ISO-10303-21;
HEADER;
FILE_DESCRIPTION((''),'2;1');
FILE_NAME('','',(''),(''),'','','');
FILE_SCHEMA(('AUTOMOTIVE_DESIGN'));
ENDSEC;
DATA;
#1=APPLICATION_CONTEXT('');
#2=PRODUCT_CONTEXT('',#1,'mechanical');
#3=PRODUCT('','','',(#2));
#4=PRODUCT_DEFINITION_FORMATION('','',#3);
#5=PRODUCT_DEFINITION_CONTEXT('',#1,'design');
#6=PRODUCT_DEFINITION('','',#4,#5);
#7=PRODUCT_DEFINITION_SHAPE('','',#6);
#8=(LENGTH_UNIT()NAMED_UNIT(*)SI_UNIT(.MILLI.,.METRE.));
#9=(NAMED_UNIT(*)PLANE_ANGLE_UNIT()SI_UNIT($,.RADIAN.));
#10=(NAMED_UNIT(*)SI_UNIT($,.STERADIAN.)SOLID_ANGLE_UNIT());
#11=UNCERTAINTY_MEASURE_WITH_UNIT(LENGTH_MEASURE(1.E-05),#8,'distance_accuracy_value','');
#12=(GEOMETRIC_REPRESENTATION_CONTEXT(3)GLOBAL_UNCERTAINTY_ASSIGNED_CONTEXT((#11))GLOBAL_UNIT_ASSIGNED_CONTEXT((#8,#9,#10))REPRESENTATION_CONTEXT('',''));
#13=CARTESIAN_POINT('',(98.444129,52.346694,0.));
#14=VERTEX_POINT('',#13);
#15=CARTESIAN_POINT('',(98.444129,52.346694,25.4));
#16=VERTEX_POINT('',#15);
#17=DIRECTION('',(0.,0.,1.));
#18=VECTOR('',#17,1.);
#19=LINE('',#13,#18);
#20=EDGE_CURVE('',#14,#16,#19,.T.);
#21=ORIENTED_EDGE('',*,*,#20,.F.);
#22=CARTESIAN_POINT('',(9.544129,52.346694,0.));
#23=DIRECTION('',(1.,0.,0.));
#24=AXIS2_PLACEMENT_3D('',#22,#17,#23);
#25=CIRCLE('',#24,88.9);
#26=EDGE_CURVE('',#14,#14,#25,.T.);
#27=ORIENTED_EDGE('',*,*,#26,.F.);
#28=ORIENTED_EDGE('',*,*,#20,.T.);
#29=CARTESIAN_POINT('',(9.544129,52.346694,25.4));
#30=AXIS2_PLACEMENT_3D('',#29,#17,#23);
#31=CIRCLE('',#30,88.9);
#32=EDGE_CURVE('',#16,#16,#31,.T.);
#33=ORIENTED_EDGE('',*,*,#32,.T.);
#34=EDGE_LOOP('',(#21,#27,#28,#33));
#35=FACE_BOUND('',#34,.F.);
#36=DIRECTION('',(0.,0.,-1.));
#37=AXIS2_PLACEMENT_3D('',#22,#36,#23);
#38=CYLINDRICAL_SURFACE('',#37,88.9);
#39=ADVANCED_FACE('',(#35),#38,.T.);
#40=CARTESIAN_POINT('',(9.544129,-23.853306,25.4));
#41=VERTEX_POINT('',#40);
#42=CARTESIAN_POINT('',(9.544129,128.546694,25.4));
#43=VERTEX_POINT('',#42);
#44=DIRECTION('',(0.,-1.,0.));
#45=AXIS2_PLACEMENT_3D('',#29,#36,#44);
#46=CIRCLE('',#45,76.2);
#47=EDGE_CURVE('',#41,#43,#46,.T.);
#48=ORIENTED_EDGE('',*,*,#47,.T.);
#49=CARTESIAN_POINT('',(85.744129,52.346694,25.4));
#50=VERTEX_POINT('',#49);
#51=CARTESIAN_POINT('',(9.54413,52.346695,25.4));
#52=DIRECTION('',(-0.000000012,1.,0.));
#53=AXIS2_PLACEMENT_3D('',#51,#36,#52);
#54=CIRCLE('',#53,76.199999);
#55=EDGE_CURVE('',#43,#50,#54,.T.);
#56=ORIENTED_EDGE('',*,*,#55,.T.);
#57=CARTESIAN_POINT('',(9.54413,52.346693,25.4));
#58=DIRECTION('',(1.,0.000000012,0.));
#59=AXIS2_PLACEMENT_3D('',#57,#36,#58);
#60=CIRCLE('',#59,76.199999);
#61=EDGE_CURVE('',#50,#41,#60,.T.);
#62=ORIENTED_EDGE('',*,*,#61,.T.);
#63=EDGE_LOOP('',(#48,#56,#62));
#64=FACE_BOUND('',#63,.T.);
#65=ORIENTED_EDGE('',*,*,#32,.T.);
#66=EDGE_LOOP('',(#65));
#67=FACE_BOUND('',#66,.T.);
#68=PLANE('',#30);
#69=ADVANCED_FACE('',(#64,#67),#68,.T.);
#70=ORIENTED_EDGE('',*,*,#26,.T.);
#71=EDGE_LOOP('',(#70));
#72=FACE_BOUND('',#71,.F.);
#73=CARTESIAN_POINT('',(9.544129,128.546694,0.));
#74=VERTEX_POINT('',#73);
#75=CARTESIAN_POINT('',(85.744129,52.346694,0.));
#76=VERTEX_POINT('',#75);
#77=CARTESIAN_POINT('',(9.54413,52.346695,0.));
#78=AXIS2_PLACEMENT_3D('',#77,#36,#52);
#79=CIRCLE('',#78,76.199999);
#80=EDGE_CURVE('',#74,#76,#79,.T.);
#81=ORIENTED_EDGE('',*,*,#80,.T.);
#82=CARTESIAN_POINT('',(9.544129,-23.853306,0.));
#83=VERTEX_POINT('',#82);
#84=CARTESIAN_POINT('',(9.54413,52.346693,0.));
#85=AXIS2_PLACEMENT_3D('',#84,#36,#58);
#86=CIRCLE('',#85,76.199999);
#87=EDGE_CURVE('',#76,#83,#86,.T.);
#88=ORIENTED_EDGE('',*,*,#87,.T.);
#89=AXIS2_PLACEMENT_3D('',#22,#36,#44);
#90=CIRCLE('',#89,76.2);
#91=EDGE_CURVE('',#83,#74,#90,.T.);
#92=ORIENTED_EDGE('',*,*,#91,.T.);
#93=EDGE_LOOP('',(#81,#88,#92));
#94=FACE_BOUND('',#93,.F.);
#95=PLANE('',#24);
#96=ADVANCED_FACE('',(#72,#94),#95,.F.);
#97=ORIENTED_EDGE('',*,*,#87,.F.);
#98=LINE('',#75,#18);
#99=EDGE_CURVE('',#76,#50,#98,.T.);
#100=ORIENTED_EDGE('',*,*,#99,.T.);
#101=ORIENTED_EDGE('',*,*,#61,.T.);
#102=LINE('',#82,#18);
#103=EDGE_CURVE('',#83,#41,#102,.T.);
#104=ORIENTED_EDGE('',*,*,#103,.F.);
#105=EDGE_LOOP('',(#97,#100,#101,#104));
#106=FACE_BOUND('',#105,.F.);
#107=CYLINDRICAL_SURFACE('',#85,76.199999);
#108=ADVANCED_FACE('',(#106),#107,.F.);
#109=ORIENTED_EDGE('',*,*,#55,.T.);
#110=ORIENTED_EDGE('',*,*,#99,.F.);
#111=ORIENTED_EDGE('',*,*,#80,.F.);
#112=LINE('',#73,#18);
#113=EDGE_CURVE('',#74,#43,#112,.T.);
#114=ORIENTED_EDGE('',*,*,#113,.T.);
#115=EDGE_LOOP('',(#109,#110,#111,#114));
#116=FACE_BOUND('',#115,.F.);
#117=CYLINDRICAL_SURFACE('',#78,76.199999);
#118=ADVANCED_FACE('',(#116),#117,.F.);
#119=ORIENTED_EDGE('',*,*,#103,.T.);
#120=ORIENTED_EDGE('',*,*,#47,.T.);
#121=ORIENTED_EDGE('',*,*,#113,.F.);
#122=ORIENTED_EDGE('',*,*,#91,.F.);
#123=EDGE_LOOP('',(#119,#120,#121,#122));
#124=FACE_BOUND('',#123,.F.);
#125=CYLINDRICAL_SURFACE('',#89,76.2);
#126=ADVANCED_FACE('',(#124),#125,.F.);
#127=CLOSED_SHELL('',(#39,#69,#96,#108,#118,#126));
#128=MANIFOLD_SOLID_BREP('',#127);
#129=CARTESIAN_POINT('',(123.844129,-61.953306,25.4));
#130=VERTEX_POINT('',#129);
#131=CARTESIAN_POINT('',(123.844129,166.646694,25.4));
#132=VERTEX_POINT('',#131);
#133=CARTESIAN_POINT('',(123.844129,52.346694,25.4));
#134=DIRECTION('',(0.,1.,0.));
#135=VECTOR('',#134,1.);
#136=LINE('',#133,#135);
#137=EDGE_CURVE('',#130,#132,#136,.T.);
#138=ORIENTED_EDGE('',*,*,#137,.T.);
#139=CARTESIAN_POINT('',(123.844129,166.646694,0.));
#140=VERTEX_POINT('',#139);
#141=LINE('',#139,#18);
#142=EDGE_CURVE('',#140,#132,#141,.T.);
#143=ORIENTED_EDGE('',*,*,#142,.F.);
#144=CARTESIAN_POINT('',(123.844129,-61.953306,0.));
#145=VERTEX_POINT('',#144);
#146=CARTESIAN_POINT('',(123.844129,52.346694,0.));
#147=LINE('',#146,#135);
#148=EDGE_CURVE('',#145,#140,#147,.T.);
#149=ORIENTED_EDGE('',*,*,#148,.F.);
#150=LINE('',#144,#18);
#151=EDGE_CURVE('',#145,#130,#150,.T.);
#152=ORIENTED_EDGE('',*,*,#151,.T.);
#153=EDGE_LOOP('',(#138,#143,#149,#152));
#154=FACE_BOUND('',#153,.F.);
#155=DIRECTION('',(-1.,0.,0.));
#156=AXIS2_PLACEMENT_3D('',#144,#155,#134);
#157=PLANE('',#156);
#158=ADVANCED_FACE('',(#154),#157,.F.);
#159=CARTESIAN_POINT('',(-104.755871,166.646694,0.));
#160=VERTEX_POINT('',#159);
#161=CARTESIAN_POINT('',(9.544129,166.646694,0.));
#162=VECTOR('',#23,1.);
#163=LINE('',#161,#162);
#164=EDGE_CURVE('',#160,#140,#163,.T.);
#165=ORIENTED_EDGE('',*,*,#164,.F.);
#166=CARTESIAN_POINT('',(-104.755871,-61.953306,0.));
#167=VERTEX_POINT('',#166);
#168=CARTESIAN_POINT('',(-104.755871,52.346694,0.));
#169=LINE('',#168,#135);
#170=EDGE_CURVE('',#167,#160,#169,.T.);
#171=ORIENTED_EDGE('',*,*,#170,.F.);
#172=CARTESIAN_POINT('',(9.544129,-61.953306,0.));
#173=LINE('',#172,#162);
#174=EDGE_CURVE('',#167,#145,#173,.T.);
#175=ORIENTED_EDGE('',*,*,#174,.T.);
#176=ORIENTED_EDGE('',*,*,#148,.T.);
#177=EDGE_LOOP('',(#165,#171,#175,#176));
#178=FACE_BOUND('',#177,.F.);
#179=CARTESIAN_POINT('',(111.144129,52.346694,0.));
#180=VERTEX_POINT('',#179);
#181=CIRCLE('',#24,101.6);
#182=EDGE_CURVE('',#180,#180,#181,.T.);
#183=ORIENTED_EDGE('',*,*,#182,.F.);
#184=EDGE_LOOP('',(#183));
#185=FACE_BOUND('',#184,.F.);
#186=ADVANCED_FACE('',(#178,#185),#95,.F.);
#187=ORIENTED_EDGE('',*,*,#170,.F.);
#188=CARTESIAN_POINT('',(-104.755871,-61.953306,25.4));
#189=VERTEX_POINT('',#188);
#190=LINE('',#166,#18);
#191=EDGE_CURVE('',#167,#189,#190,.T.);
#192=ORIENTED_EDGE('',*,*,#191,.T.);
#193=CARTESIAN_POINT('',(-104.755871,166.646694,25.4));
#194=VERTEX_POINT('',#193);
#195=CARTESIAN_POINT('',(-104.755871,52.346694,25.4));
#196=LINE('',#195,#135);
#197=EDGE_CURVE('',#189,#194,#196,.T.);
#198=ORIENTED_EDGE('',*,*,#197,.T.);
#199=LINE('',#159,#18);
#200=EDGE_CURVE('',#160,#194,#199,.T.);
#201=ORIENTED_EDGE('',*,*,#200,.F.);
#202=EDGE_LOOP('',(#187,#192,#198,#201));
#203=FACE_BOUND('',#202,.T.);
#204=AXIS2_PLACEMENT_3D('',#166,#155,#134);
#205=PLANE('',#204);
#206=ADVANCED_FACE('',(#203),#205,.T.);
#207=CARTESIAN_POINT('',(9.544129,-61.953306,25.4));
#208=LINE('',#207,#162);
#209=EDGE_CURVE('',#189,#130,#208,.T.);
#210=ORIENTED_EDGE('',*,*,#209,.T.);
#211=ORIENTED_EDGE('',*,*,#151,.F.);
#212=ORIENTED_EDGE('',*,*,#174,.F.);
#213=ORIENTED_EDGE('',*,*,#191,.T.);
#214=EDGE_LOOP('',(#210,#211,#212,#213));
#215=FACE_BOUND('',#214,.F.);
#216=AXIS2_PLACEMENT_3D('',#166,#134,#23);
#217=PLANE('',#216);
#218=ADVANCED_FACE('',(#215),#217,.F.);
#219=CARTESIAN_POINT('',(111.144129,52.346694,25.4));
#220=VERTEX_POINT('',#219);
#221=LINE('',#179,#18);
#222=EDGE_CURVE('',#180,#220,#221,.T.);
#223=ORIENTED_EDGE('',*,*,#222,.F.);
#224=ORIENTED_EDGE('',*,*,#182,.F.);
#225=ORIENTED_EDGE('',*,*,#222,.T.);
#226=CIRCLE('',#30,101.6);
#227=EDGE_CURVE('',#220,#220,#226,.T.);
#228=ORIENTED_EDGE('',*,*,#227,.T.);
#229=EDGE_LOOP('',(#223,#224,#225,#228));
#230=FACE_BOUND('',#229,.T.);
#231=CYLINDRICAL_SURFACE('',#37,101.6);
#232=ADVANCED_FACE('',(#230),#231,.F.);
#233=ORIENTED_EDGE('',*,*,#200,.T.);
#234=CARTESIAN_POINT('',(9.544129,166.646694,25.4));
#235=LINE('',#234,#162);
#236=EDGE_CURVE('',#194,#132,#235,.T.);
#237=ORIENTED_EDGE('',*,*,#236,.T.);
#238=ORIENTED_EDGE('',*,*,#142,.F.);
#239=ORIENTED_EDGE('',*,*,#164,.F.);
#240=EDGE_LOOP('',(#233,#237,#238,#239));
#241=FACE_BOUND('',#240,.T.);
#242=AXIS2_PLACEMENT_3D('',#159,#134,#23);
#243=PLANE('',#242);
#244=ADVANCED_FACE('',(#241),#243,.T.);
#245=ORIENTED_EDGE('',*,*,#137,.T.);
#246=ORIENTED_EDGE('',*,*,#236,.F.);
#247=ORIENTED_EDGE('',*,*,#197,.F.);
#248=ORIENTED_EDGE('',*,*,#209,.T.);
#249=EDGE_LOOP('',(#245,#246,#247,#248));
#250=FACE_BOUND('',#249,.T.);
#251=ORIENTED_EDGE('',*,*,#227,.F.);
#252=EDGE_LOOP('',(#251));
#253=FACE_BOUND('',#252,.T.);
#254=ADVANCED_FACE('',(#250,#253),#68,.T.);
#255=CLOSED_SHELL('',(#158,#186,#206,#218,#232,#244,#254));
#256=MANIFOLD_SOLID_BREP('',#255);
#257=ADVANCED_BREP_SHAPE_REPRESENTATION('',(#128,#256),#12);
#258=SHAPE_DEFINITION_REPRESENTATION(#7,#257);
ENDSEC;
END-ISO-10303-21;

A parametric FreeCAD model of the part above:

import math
import FreeCAD as App
import Part
import Sketcher

V = App.Vector
Q = App.Units.Quantity


def add_polygon(sketch, points):
    """Adds a closed chain of lines whose ends are joined by coincident constraints."""
    first, n = sketch.GeometryCount, len(points)
    for a, b in zip(points, points[1:] + points[:1]):
        sketch.addGeometry(Part.LineSegment(App.Vector(*a, 0), App.Vector(*b, 0)), False)
    for i in range(n):
        sketch.addConstraint(Sketcher.Constraint("Coincident", first + i, 2, first + (i + 1) % n, 1))

doc = App.newDocument("Part")
params = doc.addObject("Spreadsheet::Sheet", "Params")
for row, (alias, value) in enumerate([
    ("sketch1_diameter", "8 in"),
    ("sketch1_diameter2", "7 in"),
    ("sketch1_radius", "3 in"),
    ("sketch1_width", "9 in"),
    ("pad1_length", "1 in"),
], start=1):
    params.set(f"A{row}", alias)
    params.set(f"B{row}", "=" + value)
    params.setAlias(f"B{row}", alias)

body = doc.addObject("PartDesign::Body", "Body")
body.AllowCompound = True

# Sketch on XY plane
sketch1 = doc.addObject("Sketcher::SketchObject", "Sketch")
body.addObject(sketch1)
sketch1.AttachmentSupport = (doc.XY_Plane, [""])
sketch1.MapMode = "FlatFace"
add_polygon(sketch1, [(-105, 167), (-105, -62), (124, -62), (124, 167)])  # lines 0-3
sketch1.addGeometry(Part.Circle(V(10, 52, 0), V(0, 0, 1), 102), False)  # 4
sketch1.addGeometry(Part.Circle(V(10, 52, 0), V(0, 0, 1), 89), False)  # 5
sketch1.addGeometry(Part.ArcOfCircle(Part.Circle(V(10, 52, 0), V(0, 0, 1), 76), math.radians(90), math.radians(270)), False)  # 6
sketch1.addGeometry(Part.ArcOfCircle(Part.Circle(V(10, 52, 0), V(0, 0, 1), 76), math.radians(0), math.radians(90)), False)  # 7
sketch1.addGeometry(Part.ArcOfCircle(Part.Circle(V(10, 52, 0), V(0, 0, 1), 76), math.radians(-90), math.radians(0)), False)  # 8
sketch1.addConstraint([
    Sketcher.Constraint("Tangent", 6, 1, 7, 2),
    Sketcher.Constraint("Tangent", 7, 1, 8, 2),
    Sketcher.Constraint("Tangent", 8, 1, 6, 2),
    Sketcher.Constraint("Vertical", 0),
    Sketcher.Constraint("Horizontal", 1),
    Sketcher.Constraint("Vertical", 2),
    Sketcher.Constraint("Horizontal", 3),
    Sketcher.Constraint("Coincident", 5, 3, 4, 3),
    Sketcher.Constraint("Coincident", 6, 3, 4, 3),
    Sketcher.Constraint("Horizontal", 8, 3, 7, 1),
    Sketcher.Constraint("Vertical", 8, 3, 6, 1),
    Sketcher.Constraint("Vertical", 6, 1, 8, 1),
    Sketcher.Constraint("Equal", 3, 0),
    Sketcher.Constraint("Diameter", 4, Q("8 in")),
    Sketcher.Constraint("Diameter", 5, Q("7 in")),
    Sketcher.Constraint("Radius", 6, Q("3 in")),
    Sketcher.Constraint("DistanceX", 1, 1, 1, 2, Q("9 in")),
    Sketcher.Constraint("DistanceX", 0, 2, 4, 3, Q("4.5 in")),
    Sketcher.Constraint("DistanceY", 0, 2, 4, 3, Q("4.5 in")),
    Sketcher.Constraint("DistanceX", -1, 1, 4, 3, 9.544129),
    Sketcher.Constraint("DistanceY", -1, 1, 4, 3, 52.346694),
])
sketch1.setExpression("Constraints[17]", "Params.sketch1_diameter")
sketch1.setExpression("Constraints[18]", "Params.sketch1_diameter2")
sketch1.setExpression("Constraints[19]", "Params.sketch1_radius")
sketch1.setExpression("Constraints[20]", "Params.sketch1_width")
pad1 = doc.addObject("PartDesign::Pad", "Pad")
body.addObject(pad1)
pad1.Profile = sketch1
pad1.setExpression("Length", "Params.pad1_length")

doc.recompute()
